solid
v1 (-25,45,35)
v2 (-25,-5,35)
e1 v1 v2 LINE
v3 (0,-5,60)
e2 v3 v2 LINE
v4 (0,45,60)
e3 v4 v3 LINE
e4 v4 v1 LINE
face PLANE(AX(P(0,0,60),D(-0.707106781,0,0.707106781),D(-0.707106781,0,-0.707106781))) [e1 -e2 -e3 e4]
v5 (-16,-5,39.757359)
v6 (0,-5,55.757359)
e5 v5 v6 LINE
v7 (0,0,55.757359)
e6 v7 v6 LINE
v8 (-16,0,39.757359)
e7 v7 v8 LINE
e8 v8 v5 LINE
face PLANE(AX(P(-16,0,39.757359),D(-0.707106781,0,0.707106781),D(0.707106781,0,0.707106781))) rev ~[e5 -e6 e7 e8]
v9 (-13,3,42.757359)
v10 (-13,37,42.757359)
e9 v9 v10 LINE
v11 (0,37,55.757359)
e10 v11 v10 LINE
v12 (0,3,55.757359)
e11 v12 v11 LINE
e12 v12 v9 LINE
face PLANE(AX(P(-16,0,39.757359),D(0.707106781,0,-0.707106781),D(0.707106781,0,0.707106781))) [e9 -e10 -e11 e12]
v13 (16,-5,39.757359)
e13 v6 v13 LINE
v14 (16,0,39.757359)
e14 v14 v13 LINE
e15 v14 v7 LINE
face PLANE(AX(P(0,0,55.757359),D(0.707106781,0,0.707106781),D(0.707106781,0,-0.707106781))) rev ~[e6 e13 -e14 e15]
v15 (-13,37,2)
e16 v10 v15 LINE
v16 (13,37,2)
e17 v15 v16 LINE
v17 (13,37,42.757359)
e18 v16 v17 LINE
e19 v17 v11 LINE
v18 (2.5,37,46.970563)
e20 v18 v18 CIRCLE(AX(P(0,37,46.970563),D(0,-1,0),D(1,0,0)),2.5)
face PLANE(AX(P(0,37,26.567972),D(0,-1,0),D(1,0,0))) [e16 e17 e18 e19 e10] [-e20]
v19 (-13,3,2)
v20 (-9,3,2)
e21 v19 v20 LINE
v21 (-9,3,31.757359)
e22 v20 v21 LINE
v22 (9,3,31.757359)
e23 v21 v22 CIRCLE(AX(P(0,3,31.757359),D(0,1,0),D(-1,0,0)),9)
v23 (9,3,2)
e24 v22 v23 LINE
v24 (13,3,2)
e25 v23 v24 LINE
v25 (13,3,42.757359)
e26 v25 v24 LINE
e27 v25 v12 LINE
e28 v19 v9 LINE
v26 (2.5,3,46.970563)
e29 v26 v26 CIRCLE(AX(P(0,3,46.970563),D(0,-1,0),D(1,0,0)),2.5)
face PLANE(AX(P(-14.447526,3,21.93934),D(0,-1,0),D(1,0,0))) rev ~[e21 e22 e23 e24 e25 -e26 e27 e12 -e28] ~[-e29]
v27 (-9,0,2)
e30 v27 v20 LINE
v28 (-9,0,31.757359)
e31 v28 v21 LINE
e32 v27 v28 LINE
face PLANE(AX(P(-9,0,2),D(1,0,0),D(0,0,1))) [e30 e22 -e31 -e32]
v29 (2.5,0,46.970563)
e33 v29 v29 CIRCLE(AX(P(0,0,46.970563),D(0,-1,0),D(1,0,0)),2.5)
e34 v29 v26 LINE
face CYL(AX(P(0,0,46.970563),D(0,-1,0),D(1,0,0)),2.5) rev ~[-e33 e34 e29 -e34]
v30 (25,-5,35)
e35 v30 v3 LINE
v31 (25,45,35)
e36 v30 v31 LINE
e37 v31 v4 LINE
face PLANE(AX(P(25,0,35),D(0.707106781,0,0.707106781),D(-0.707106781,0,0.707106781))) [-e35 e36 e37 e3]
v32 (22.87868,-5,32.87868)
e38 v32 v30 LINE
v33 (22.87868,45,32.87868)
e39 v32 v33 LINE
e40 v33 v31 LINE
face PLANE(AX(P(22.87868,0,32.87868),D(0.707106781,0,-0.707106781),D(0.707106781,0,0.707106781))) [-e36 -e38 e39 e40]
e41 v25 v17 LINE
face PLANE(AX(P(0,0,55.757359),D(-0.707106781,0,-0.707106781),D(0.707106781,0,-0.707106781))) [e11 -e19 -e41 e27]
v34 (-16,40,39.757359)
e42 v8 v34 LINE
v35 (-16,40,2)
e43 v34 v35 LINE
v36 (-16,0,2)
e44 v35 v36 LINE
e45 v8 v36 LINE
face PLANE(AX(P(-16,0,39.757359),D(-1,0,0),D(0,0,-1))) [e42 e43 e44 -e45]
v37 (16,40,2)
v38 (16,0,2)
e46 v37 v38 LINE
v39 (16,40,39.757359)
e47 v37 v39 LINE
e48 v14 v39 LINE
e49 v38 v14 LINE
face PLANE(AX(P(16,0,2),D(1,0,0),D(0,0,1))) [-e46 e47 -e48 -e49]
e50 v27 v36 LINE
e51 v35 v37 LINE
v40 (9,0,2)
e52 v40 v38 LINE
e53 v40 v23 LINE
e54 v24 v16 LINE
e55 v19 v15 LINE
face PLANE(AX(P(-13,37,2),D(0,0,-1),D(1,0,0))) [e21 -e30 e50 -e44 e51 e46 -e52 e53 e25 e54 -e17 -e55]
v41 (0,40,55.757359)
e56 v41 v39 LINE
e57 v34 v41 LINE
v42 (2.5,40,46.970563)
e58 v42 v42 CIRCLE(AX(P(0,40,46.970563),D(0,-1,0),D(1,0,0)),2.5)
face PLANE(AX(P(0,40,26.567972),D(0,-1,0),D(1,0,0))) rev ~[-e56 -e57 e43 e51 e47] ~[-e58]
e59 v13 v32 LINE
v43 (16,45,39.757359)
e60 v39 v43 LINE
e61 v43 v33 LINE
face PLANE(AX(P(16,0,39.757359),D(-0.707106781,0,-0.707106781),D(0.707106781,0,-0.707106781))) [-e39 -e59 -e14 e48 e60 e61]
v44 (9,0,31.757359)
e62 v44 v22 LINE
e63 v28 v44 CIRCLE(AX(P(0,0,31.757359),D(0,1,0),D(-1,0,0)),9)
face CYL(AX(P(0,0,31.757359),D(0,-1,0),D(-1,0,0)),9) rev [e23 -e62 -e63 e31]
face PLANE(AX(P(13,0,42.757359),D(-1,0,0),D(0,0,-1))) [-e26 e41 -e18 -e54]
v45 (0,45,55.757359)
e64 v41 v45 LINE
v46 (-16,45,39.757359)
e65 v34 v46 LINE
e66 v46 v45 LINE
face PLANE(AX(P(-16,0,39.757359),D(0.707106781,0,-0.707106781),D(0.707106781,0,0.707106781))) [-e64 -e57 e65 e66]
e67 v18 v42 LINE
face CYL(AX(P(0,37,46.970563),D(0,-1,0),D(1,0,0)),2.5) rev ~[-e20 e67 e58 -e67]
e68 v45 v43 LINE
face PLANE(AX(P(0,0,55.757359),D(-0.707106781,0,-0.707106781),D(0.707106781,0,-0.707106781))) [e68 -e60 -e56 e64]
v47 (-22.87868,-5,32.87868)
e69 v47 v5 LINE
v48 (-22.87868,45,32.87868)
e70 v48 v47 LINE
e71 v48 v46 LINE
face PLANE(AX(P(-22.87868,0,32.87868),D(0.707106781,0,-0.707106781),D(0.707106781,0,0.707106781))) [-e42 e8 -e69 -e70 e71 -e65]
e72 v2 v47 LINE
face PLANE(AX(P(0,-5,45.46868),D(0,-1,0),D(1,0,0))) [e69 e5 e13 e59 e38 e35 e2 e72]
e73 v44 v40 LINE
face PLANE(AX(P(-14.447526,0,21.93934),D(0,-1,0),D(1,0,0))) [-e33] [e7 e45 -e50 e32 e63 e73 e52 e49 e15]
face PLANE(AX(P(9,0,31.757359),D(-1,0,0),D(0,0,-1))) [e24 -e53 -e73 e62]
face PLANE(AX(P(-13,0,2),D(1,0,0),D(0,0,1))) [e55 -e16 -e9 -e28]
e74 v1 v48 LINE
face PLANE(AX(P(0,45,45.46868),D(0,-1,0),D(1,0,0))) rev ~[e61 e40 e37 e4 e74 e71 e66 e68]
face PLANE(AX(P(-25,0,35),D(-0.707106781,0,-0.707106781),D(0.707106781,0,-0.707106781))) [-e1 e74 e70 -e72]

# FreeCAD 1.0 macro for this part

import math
import FreeCAD as App
import Part
import Sketcher
from FreeCAD import Vector
Q = App.Units.Quantity


def add_polygon(sketch, points):
    """Adds a closed chain of lines whose ends are joined by coincident constraints."""
    first, n = sketch.GeometryCount, len(points)
    for a, b in zip(points, points[1:] + points[:1]):
        sketch.addGeometry(Part.LineSegment(App.Vector(*a, 0), App.Vector(*b, 0)), False)
    for i in range(n):
        sketch.addConstraint(Sketcher.Constraint("Coincident", first + i, 2, first + (i + 1) % n, 1))

doc = App.newDocument("Part")
params = doc.addObject("Spreadsheet::Sheet", "Params")
for row, (alias, value) in enumerate([
    ("sketch1_diameter", "5 mm"),
    ("sketch1_radius", "9 mm"),
    ("sketch1_width", "7 mm"),
    ("pad1_length", "3 mm"),
    ("sketch2_length", "3 mm"),
    ("pad2_length", "5 mm"),
    ("pad2_length2", "45 mm"),
    ("sketch3_width", "3 mm"),
    ("pad3_length", "40 mm"),
    ("sketch4_diameter", "5 mm"),
    ("sketch4_width", "26 mm"),
    ("pad4_length", "3 mm"),
], start=1):
    params.set(f"A{row}", alias)
    params.set(f"B{row}", "=" + value)
    params.setAlias(f"B{row}", alias)

body = doc.addObject("PartDesign::Body", "Body")

# Sketch on XZ plane
sketch1 = body.newObject("Sketcher::SketchObject", "Sketch")
sketch1.AttachmentSupport = (doc.getObject("XZ_Plane"), [""])
sketch1.MapMode = "FlatFace"
sketch1.addGeometry(Part.LineSegment(Vector(-16, 39.8, 0), Vector(-16, 2, 0)), False)
sketch1.addGeometry(Part.LineSegment(Vector(-16, 2, 0), Vector(-9, 2, 0)), False)
sketch1.addGeometry(Part.LineSegment(Vector(-9, 2, 0), Vector(-9, 31.8, 0)), False)
sketch1.addGeometry(Part.ArcOfCircle(Part.Circle(Vector(0, 31.8, 0), Vector(0, 0, 1), 9), math.radians(0), math.radians(180)), False)
sketch1.addGeometry(Part.LineSegment(Vector(9, 31.8, 0), Vector(9, 2, 0)), False)
sketch1.addGeometry(Part.LineSegment(Vector(9, 2, 0), Vector(16, 2, 0)), False)
sketch1.addGeometry(Part.LineSegment(Vector(16, 2, 0), Vector(16, 39.8, 0)), False)
sketch1.addGeometry(Part.LineSegment(Vector(16, 39.8, 0), Vector(0, 55.8, 0)), False)
sketch1.addGeometry(Part.LineSegment(Vector(0, 55.8, 0), Vector(-16, 39.8, 0)), False)
sketch1.addGeometry(Part.Circle(Vector(0, 47, 0), Vector(0, 0, 1), 2.5), False)
sketch1.addConstraint(Sketcher.Constraint("Coincident", 0, 2, 1, 1))
sketch1.addConstraint(Sketcher.Constraint("Coincident", 1, 2, 2, 1))
sketch1.addConstraint(Sketcher.Constraint("Tangent", 2, 2, 3, 2))
sketch1.addConstraint(Sketcher.Constraint("Tangent", 3, 1, 4, 1))
sketch1.addConstraint(Sketcher.Constraint("Coincident", 4, 2, 5, 1))
sketch1.addConstraint(Sketcher.Constraint("Coincident", 5, 2, 6, 1))
sketch1.addConstraint(Sketcher.Constraint("Coincident", 6, 2, 7, 1))
sketch1.addConstraint(Sketcher.Constraint("Coincident", 7, 2, 8, 1))
sketch1.addConstraint(Sketcher.Constraint("Coincident", 8, 2, 0, 1))
sketch1.addConstraint(Sketcher.Constraint("Vertical", 0))
sketch1.addConstraint(Sketcher.Constraint("Horizontal", 1))
sketch1.addConstraint(Sketcher.Constraint("Vertical", 2))
sketch1.addConstraint(Sketcher.Constraint("Vertical", 4))
sketch1.addConstraint(Sketcher.Constraint("Horizontal", 5))
sketch1.addConstraint(Sketcher.Constraint("Vertical", 6))
sketch1.addConstraint(Sketcher.Constraint("Symmetric", 1, 2, 4, 2, -2))
sketch1.addConstraint(Sketcher.Constraint("Symmetric", 6, 2, 8, 2, -2))
sketch1.addConstraint(Sketcher.Constraint("PointOnObject", 9, 3, -2))
sketch1.addConstraint(Sketcher.Constraint("PointOnObject", 7, 2, -2))
sketch1.addConstraint(Sketcher.Constraint("Perpendicular", 7, 8))
sketch1.addConstraint(Sketcher.Constraint("Diameter", 9, Q("5 mm")))
sketch1.addConstraint(Sketcher.Constraint("Radius", 3, Q("9 mm")))
sketch1.addConstraint(Sketcher.Constraint("DistanceX", 1, 1, 1, 2, Q("7 mm")))
sketch1.addConstraint(Sketcher.Constraint("DistanceY", -1, 1, 0, 2, Q("2 mm")))
sketch1.addConstraint(Sketcher.Constraint("DistanceY", 3, 1, 6, 2, Q("8 mm")))
sketch1.addConstraint(Sketcher.Constraint("DistanceY", 0, 2, 0, 1, Q("37.757359 mm")))
sketch1.addConstraint(Sketcher.Constraint("DistanceY", -1, 1, 9, 3, Q("46.970563 mm")))
sketch1.setExpression("Constraints[20]", "Params.sketch1_diameter")
sketch1.setExpression("Constraints[21]", "Params.sketch1_radius")
sketch1.setExpression("Constraints[22]", "Params.sketch1_width")
pad1 = body.newObject("PartDesign::Pad", "Pad")
pad1.Profile = sketch1
pad1.setExpression("Length", "Params.pad1_length")
pad1.Reversed = True

# Sketch on XZ plane
sketch2 = body.newObject("Sketcher::SketchObject", "Sketch001")
sketch2.AttachmentSupport = (doc.getObject("XZ_Plane"), [""])
sketch2.MapMode = "FlatFace"
add_polygon(sketch2, [(25, 35), (0, 60), (-25, 35), (-22.9, 32.9), (-16, 39.8), (0, 55.8), (16, 39.8), (22.9, 32.9)])  # lines 0-7
sketch2.addConstraint(Sketcher.Constraint("Symmetric", 3, 2, 5, 2, -2))
sketch2.addConstraint(Sketcher.Constraint("Symmetric", 2, 2, 6, 2, -2))
sketch2.addConstraint(Sketcher.Constraint("Symmetric", 1, 2, 7, 2, -2))
sketch2.addConstraint(Sketcher.Constraint("PointOnObject", 0, 2, -2))
sketch2.addConstraint(Sketcher.Constraint("PointOnObject", 4, 2, -2))
sketch2.addConstraint(Sketcher.Constraint("Perpendicular", 0, 1))
sketch2.addConstraint(Sketcher.Constraint("Perpendicular", 1, 2))
sketch2.addConstraint(Sketcher.Constraint("Perpendicular", 2, 3))
sketch2.addConstraint(Sketcher.Constraint("Parallel", 3, 4))
sketch2.addConstraint(Sketcher.Constraint("Distance", 2, Q("3 mm")))
sketch2.addConstraint(Sketcher.Constraint("DistanceY", -1, 1, 0, 2, Q("60 mm")))
sketch2.addConstraint(Sketcher.Constraint("DistanceX", 1, 2, -1, 1, Q("25 mm")))
sketch2.addConstraint(Sketcher.Constraint("DistanceX", 3, 2, -1, 1, Q("16 mm")))
sketch2.setExpression("Constraints[17]", "Params.sketch2_length")
pad2 = body.newObject("PartDesign::Pad", "Pad001")
pad2.Profile = sketch2
pad2.Type = "TwoLengths"
pad2.setExpression("Length", "Params.pad2_length")
pad2.setExpression("Length2", "Params.pad2_length2")

# Sketch on XZ plane
sketch3 = body.newObject("Sketcher::SketchObject", "Sketch002")
sketch3.AttachmentSupport = (doc.getObject("XZ_Plane"), [""])
sketch3.MapMode = "FlatFace"
add_polygon(sketch3, [(-13, 42.8), (-16, 39.8), (-16, 2), (-13, 2)])  # lines 0-3
add_polygon(sketch3, [(16, 2), (16, 39.8), (13, 42.8), (13, 2)])  # lines 4-7
sketch3.addConstraint(Sketcher.Constraint("Vertical", 1))
sketch3.addConstraint(Sketcher.Constraint("Horizontal", 2))
sketch3.addConstraint(Sketcher.Constraint("Vertical", 3))
sketch3.addConstraint(Sketcher.Constraint("Vertical", 4))
sketch3.addConstraint(Sketcher.Constraint("Vertical", 6))
sketch3.addConstraint(Sketcher.Constraint("Horizontal", 7))
sketch3.addConstraint(Sketcher.Constraint("Symmetric", 0, 2, 4, 2, -2))
sketch3.addConstraint(Sketcher.Constraint("Symmetric", 3, 2, 5, 2, -2))
sketch3.addConstraint(Sketcher.Constraint("Perpendicular", 0, 5))
sketch3.addConstraint(Sketcher.Constraint("Horizontal", 2, 2, 6, 2))
sketch3.addConstraint(Sketcher.Constraint("DistanceX", 2, 1, 2, 2, Q("3 mm")))
sketch3.addConstraint(Sketcher.Constraint("DistanceX", 0, 2, -1, 1, Q("16 mm")))
sketch3.addConstraint(Sketcher.Constraint("DistanceY", -1, 1, 1, 2, Q("2 mm")))
sketch3.addConstraint(Sketcher.Constraint("DistanceY", 1, 2, 1, 1, Q("37.757359 mm")))
sketch3.setExpression("Constraints[18]", "Params.sketch3_width")
pad3 = body.newObject("PartDesign::Pad", "Pad002")
pad3.Profile = sketch3
pad3.setExpression("Length", "Params.pad3_length")
pad3.Reversed = True

# Sketch on XZ plane
sketch4 = body.newObject("Sketcher::SketchObject", "Sketch003")
sketch4.AttachmentSupport = (doc.getObject("XZ_Plane"), [""])
sketch4.MapMode = "FlatFace"
sketch4.AttachmentOffset = App.Placement(Vector(0, 0, -37), App.Rotation())
add_polygon(sketch4, [(13, 2), (13, 42.8), (0, 55.8), (-13, 42.8), (-13, 2)])  # lines 0-4
sketch4.addGeometry(Part.Circle(Vector(0, 47, 0), Vector(0, 0, 1), 2.5), False)  # 5
sketch4.addConstraint(Sketcher.Constraint("Vertical", 0))
sketch4.addConstraint(Sketcher.Constraint("Vertical", 3))
sketch4.addConstraint(Sketcher.Constraint("Horizontal", 4))
sketch4.addConstraint(Sketcher.Constraint("Symmetric", 0, 2, 2, 2, -2))
sketch4.addConstraint(Sketcher.Constraint("PointOnObject", 5, 3, -2))
sketch4.addConstraint(Sketcher.Constraint("PointOnObject", 1, 2, -2))
sketch4.addConstraint(Sketcher.Constraint("Perpendicular", 1, 2))
sketch4.addConstraint(Sketcher.Constraint("Diameter", 5, Q("5 mm")))
sketch4.addConstraint(Sketcher.Constraint("DistanceX", 4, 1, 4, 2, Q("26 mm")))
sketch4.addConstraint(Sketcher.Constraint("DistanceY", -1, 1, 3, 2, Q("2 mm")))
sketch4.addConstraint(Sketcher.Constraint("DistanceY", 0, 1, 0, 2, Q("40.757359 mm")))
sketch4.addConstraint(Sketcher.Constraint("DistanceY", -1, 1, 5, 3, Q("46.970563 mm")))
sketch4.setExpression("Constraints[12]", "Params.sketch4_diameter")
sketch4.setExpression("Constraints[13]", "Params.sketch4_width")
pad4 = body.newObject("PartDesign::Pad", "Pad003")
pad4.Profile = sketch4
pad4.setExpression("Length", "Params.pad4_length")
pad4.Reversed = True

doc.recompute()
